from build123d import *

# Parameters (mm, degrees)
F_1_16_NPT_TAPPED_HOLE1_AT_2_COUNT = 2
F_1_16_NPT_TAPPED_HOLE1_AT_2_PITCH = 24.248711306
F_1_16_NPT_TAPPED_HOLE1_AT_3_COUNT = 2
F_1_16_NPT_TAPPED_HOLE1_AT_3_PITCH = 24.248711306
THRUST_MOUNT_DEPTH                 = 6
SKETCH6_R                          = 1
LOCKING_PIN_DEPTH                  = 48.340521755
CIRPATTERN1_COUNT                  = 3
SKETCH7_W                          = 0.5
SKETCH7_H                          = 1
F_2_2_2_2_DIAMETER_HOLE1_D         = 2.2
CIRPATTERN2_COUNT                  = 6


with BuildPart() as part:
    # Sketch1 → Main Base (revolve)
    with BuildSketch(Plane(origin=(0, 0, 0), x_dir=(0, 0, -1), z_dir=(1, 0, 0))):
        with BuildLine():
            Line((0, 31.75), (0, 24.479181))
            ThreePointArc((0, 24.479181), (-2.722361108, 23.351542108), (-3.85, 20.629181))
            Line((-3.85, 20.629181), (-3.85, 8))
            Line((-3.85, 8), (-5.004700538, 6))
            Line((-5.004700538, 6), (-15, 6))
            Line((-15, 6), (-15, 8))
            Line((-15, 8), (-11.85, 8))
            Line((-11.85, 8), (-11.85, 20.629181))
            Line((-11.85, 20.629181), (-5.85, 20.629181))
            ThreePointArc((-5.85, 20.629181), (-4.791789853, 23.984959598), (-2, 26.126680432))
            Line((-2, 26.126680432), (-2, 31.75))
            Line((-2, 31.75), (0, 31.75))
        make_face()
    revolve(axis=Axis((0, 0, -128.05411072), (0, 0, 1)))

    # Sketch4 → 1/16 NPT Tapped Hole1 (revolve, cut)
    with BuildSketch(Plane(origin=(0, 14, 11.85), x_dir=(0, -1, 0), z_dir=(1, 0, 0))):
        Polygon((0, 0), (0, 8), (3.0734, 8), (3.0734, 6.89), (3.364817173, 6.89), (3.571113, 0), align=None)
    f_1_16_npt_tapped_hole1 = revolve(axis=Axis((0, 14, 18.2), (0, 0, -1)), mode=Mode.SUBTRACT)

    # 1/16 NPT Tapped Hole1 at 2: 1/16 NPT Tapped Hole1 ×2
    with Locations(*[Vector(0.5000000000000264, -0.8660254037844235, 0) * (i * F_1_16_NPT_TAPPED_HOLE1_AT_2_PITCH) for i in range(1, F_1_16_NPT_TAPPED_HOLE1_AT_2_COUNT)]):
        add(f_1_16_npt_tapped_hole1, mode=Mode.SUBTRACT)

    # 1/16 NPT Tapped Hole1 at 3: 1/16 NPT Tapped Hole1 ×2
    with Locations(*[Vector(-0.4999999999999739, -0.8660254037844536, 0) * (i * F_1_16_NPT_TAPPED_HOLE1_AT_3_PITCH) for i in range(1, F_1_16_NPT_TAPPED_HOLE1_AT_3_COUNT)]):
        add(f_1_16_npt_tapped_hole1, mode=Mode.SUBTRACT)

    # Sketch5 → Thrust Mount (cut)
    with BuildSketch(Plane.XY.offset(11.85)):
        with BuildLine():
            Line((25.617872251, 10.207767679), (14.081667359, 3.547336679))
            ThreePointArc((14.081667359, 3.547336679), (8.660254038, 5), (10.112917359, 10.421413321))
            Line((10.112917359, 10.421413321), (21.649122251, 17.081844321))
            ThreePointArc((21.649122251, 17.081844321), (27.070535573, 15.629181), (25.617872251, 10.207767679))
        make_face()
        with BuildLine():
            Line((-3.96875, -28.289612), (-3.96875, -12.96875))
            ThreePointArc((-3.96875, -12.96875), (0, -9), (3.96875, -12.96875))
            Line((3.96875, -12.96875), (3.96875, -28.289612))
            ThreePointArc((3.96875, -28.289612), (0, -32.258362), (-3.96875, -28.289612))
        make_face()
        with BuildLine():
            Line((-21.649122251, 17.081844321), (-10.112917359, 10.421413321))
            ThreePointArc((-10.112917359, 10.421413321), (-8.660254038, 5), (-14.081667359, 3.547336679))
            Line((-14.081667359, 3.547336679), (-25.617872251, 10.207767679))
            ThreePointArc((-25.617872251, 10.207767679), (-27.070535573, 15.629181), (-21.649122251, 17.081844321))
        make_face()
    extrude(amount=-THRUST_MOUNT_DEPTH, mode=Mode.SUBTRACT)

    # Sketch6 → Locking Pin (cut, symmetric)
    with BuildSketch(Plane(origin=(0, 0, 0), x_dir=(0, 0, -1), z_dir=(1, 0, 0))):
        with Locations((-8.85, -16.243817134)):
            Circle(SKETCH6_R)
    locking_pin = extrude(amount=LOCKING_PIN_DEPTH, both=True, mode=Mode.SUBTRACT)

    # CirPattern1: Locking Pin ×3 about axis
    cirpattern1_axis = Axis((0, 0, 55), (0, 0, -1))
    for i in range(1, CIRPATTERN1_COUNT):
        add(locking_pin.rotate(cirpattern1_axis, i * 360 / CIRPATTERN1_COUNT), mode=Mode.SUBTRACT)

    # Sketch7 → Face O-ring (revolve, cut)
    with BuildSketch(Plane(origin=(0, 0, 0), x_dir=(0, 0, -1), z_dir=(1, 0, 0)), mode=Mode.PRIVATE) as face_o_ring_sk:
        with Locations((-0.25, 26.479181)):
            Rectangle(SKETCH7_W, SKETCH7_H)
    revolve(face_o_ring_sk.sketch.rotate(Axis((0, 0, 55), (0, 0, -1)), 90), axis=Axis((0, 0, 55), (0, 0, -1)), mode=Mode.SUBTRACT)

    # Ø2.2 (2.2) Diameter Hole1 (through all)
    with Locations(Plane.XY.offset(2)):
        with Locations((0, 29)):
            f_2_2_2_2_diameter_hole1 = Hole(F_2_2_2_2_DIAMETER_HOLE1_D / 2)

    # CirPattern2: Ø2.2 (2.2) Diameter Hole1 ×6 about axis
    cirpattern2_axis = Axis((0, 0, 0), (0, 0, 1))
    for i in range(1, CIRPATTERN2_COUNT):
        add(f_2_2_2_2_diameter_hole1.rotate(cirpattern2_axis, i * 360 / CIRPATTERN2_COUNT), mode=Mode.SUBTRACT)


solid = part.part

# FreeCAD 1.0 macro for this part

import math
import FreeCAD as App
import Part
import Sketcher
from FreeCAD import Vector
Q = App.Units.Quantity

doc = App.newDocument("Part")
params = doc.addObject("Spreadsheet::Sheet", "Params")
for row, (alias, value) in enumerate([
    ("sketch1_width", "2 mm"),
    ("sketch1_height", "6 mm"),
    ("sketch1_radius", "5.85 mm"),
    ("sketch1_radius2", "3.85 mm"),
    ("revolution_angle", "360 deg"),
    ("sketch2_height", "8 mm"),
    ("sketch2_height2", "1.11 mm"),
    ("groove_angle", "360 deg"),
    ("linearpattern_pitch", "24.248711 mm"),
    ("linearpattern2_pitch", "24.248711 mm"),
    ("pocket1_length", "6 mm"),
    ("sketch4_diameter", "2 mm"),
    ("pocket2_length", "96.681044 mm"),
    ("sketch5_width", "1 mm"),
    ("sketch5_height", "0.5 mm"),
    ("groove2_angle", "360 deg"),
    ("sketch6_diameter", "2.2 mm"),
    ("hole_diameter", "2.2 mm"),
], start=1):
    params.set(f"A{row}", alias)
    params.set(f"B{row}", "=" + value)
    params.setAlias(f"B{row}", alias)

body = doc.addObject("PartDesign::Body", "Body")

# Sketch on YZ plane
sketch1 = body.newObject("Sketcher::SketchObject", "Sketch")
sketch1.AttachmentSupport = (doc.getObject("YZ_Plane"), [""])
sketch1.MapMode = "FlatFace"
sketch1.addGeometry([
    Part.LineSegment(Vector(24.5, 0, 0), Vector(31.8, 0, 0)),  # 0
    Part.LineSegment(Vector(31.8, 0, 0), Vector(31.8, 2, 0)),  # 1
    Part.LineSegment(Vector(31.8, 2, 0), Vector(26.1, 2, 0)),  # 2
    Part.ArcOfCircle(Part.Circle(Vector(20.6, 0, 0), Vector(0, 0, 1), 5.9), math.radians(20), math.radians(90)),  # 3
    Part.LineSegment(Vector(20.6, 5.8, 0), Vector(20.6, 11.8, 0)),  # 4
    Part.LineSegment(Vector(20.6, 11.8, 0), Vector(8, 11.8, 0)),  # 5
    Part.LineSegment(Vector(8, 11.8, 0), Vector(8, 15, 0)),  # 6
    Part.LineSegment(Vector(8, 15, 0), Vector(6, 15, 0)),  # 7
    Part.LineSegment(Vector(6, 15, 0), Vector(6, 5, 0)),  # 8
    Part.LineSegment(Vector(6, 5, 0), Vector(8, 3.9, 0)),  # 9
    Part.LineSegment(Vector(8, 3.9, 0), Vector(20.6, 3.9, 0)),  # 10
    Part.ArcOfCircle(Part.Circle(Vector(20.6, 0, 0), Vector(0, 0, 1), 3.8), math.radians(0), math.radians(90)),  # 11
], False)
sketch1.addConstraint([
    Sketcher.Constraint("Coincident", 0, 2, 1, 1),
    Sketcher.Constraint("Coincident", 1, 2, 2, 1),
    Sketcher.Constraint("Coincident", 2, 2, 3, 1),
    Sketcher.Constraint("Coincident", 3, 2, 4, 1),
    Sketcher.Constraint("Coincident", 4, 2, 5, 1),
    Sketcher.Constraint("Coincident", 5, 2, 6, 1),
    Sketcher.Constraint("Coincident", 6, 2, 7, 1),
    Sketcher.Constraint("Coincident", 7, 2, 8, 1),
    Sketcher.Constraint("Coincident", 8, 2, 9, 1),
    Sketcher.Constraint("Coincident", 9, 2, 10, 1),
    Sketcher.Constraint("Tangent", 10, 2, 11, 2),
    Sketcher.Constraint("Coincident", 11, 1, 0, 1),
    Sketcher.Constraint("Horizontal", 0),
    Sketcher.Constraint("Vertical", 1),
    Sketcher.Constraint("Horizontal", 2),
    Sketcher.Constraint("Vertical", 4),
    Sketcher.Constraint("Horizontal", 5),
    Sketcher.Constraint("Vertical", 6),
    Sketcher.Constraint("Horizontal", 7),
    Sketcher.Constraint("Vertical", 8),
    Sketcher.Constraint("Horizontal", 10),
    Sketcher.Constraint("Coincident", 11, 3, 3, 3),
    Sketcher.Constraint("PointOnObject", 3, 3, -1),
    Sketcher.Constraint("PointOnObject", 0, 2, -1),
    Sketcher.Constraint("Vertical", 11, 3, 3, 2),
    Sketcher.Constraint("Vertical", 6, 2, 9, 2),
    Sketcher.Constraint("Equal", 7, 1),
    Sketcher.Constraint("DistanceX", 7, 2, 7, 1, Q("2 mm")),
    Sketcher.Constraint("DistanceY", 4, 1, 4, 2, Q("6 mm")),
    Sketcher.Constraint("Angle", 9, Q("-30 deg")),
    Sketcher.Constraint("Radius", 3, Q("5.85 mm")),
    Sketcher.Constraint("Radius", 11, Q("3.85 mm")),
    Sketcher.Constraint("DistanceX", -1, 1, 5, 2, Q("8 mm")),
    Sketcher.Constraint("DistanceY", -1, 1, 6, 2, Q("15 mm")),
    Sketcher.Constraint("DistanceX", -1, 1, 0, 2, Q("31.75 mm")),
    Sketcher.Constraint("DistanceX", 0, 1, 0, 2, Q("7.270819 mm")),
])
sketch1.setExpression("Constraints[27]", "Params.sketch1_width")
sketch1.setExpression("Constraints[28]", "Params.sketch1_height")
sketch1.setExpression("Constraints[30]", "Params.sketch1_radius")
sketch1.setExpression("Constraints[31]", "Params.sketch1_radius2")
revolution = body.newObject("PartDesign::Revolution", "Revolution")
revolution.Profile = sketch1
revolution.ReferenceAxis = (sketch1, ["V_Axis"])
revolution.setExpression("Angle", "Params.revolution_angle")

# Sketch on YZ plane
sketch2 = body.newObject("Sketcher::SketchObject", "Sketch001")
sketch2.AttachmentSupport = (doc.getObject("YZ_Plane"), [""])
sketch2.MapMode = "FlatFace"
sketch2.addGeometry([
    Part.LineSegment(Vector(14, 3.85, 0), Vector(14, 11.85, 0)),  # 0
    Part.LineSegment(Vector(14, 11.85, 0), Vector(10.43, 11.85, 0)),  # 1
    Part.LineSegment(Vector(10.43, 11.85, 0), Vector(10.64, 4.96, 0)),  # 2
    Part.LineSegment(Vector(10.64, 4.96, 0), Vector(10.93, 4.96, 0)),  # 3
    Part.LineSegment(Vector(10.93, 4.96, 0), Vector(10.93, 3.85, 0)),  # 4
    Part.LineSegment(Vector(10.93, 3.85, 0), Vector(14, 3.85, 0)),  # 5
], False)
sketch2.addGeometry(Part.LineSegment(Vector(14, 11.85, 0), Vector(14, 3.85, 0)), True)  # axis
sketch2.addConstraint([
    Sketcher.Constraint("Coincident", 0, 2, 1, 1),
    Sketcher.Constraint("Coincident", 1, 2, 2, 1),
    Sketcher.Constraint("Coincident", 2, 2, 3, 1),
    Sketcher.Constraint("Coincident", 3, 2, 4, 1),
    Sketcher.Constraint("Coincident", 4, 2, 5, 1),
    Sketcher.Constraint("Coincident", 5, 2, 0, 1),
    Sketcher.Constraint("Vertical", 0),
    Sketcher.Constraint("Horizontal", 1),
    Sketcher.Constraint("Horizontal", 3),
    Sketcher.Constraint("Vertical", 4),
    Sketcher.Constraint("Horizontal", 5),
    Sketcher.Constraint("Vertical", 6),
    Sketcher.Constraint("Coincident", 6, 1, 0, 2),
    Sketcher.Constraint("Horizontal", 4, 2, 6, 2),
    Sketcher.Constraint("DistanceY", 0, 1, 0, 2, Q("8 mm")),
    Sketcher.Constraint("DistanceX", -1, 1, 0, 2, Q("14 mm")),
    Sketcher.Constraint("DistanceY", 4, 2, 4, 1, Q("1.11 mm")),
    Sketcher.Constraint("DistanceY", -1, 1, 0, 2, Q("11.85 mm")),
    Sketcher.Constraint("DistanceX", 5, 1, 5, 2, Q("3.0734 mm")),
    Sketcher.Constraint("DistanceX", 1, 2, 1, 1, Q("3.571113 mm")),
    Sketcher.Constraint("DistanceX", 3, 1, 3, 2, Q("0.291417 mm")),
])
sketch2.setExpression("Constraints[14]", "Params.sketch2_height")
sketch2.setExpression("Constraints[16]", "Params.sketch2_height2")
groove = body.newObject("PartDesign::Groove", "Groove")
groove.Profile = sketch2
groove.ReferenceAxis = (sketch2, ["Axis0"])
groove.setExpression("Angle", "Params.groove_angle")
doc.recompute()

datumline = body.newObject("PartDesign::Line", "DatumLine")
datumline.Placement = App.Placement(Vector(0, 0, 0), App.Rotation(Vector(0, 0, 1), Vector(0.5, -0.866025404, 0)))
linearpattern = body.newObject("PartDesign::LinearPattern", "LinearPattern")
linearpattern.Originals = [groove]
linearpattern.Direction = (datumline, [""])
linearpattern.Mode = "offset"
linearpattern.setExpression("Offset", "Params.linearpattern_pitch")
linearpattern.Occurrences = 2
body.Tip = linearpattern
doc.recompute()

datumline2 = body.newObject("PartDesign::Line", "DatumLine001")
datumline2.Placement = App.Placement(Vector(0, 0, 0), App.Rotation(Vector(0, 0, 1), Vector(-0.5, -0.866025404, 0)))
linearpattern2 = body.newObject("PartDesign::LinearPattern", "LinearPattern001")
linearpattern2.Originals = [groove]
linearpattern2.Direction = (datumline2, [""])
linearpattern2.Mode = "offset"
linearpattern2.setExpression("Offset", "Params.linearpattern2_pitch")
linearpattern2.Occurrences = 2
body.Tip = linearpattern2

# Sketch on XY plane
sketch3 = body.newObject("Sketcher::SketchObject", "Sketch002")
sketch3.AttachmentSupport = (doc.getObject("XY_Plane"), [""])
sketch3.MapMode = "FlatFace"
sketch3.AttachmentOffset = App.Placement(Vector(0, 0, 11.85), App.Rotation())
sketch3.addGeometry([
    Part.LineSegment(Vector(14.1, 3.5, 0), Vector(25.6, 10.2, 0)),  # 0
    Part.ArcOfCircle(Part.Circle(Vector(23.6, 13.6, 0), Vector(0, 0, 1), 4), math.radians(-60), math.radians(120)),  # 1
    Part.LineSegment(Vector(21.6, 17.1, 0), Vector(10.1, 10.4, 0)),  # 2
    Part.ArcOfCircle(Part.Circle(Vector(12.1, 7, 0), Vector(0, 0, 1), 4), math.radians(120), math.radians(300)),  # 3
    Part.LineSegment(Vector(-4, -13, 0), Vector(-4, -28.3, 0)),  # 4
    Part.ArcOfCircle(Part.Circle(Vector(0, -28.3, 0), Vector(0, 0, 1), 4), math.radians(180), math.radians(360)),  # 5
    Part.LineSegment(Vector(4, -28.3, 0), Vector(4, -13, 0)),  # 6
    Part.ArcOfCircle(Part.Circle(Vector(0, -13, 0), Vector(0, 0, 1), 4), math.radians(0), math.radians(180)),  # 7
    Part.LineSegment(Vector(-10.1, 10.4, 0), Vector(-21.6, 17.1, 0)),  # 8
    Part.ArcOfCircle(Part.Circle(Vector(-23.6, 13.6, 0), Vector(0, 0, 1), 4), math.radians(60), math.radians(240)),  # 9
    Part.LineSegment(Vector(-25.6, 10.2, 0), Vector(-14.1, 3.5, 0)),  # 10
    Part.ArcOfCircle(Part.Circle(Vector(-12.1, 7, 0), Vector(0, 0, 1), 4), math.radians(-120), math.radians(60)),  # 11
], False)
sketch3.addConstraint([
    Sketcher.Constraint("Tangent", 0, 2, 1, 1),
    Sketcher.Constraint("Tangent", 1, 2, 2, 1),
    Sketcher.Constraint("Tangent", 2, 2, 3, 1),
    Sketcher.Constraint("Tangent", 3, 2, 0, 1),
    Sketcher.Constraint("Tangent", 4, 2, 5, 1),
    Sketcher.Constraint("Tangent", 5, 2, 6, 1),
    Sketcher.Constraint("Tangent", 6, 2, 7, 1),
    Sketcher.Constraint("Tangent", 7, 2, 4, 1),
    Sketcher.Constraint("Tangent", 8, 2, 9, 1),
    Sketcher.Constraint("Tangent", 9, 2, 10, 1),
    Sketcher.Constraint("Tangent", 10, 2, 11, 1),
    Sketcher.Constraint("Tangent", 11, 2, 8, 1),
    Sketcher.Constraint("Vertical", 4),
    Sketcher.Constraint("Vertical", 6),
    Sketcher.Constraint("Equal", 1, 3),
    Sketcher.Constraint("Equal", 3, 5),
    Sketcher.Constraint("Equal", 7, 9),
    Sketcher.Constraint("Equal", 9, 11),
    Sketcher.Constraint("Symmetric", 1, 3, 9, 3, -2),
    Sketcher.Constraint("Symmetric", 3, 3, 11, 3, -2),
    Sketcher.Constraint("PointOnObject", 5, 3, -2),
    Sketcher.Constraint("Angle", 0, Q("30 deg")),
    Sketcher.Constraint("Radius", 1, Q("3.96875 mm")),
    Sketcher.Constraint("Distance", 0, Q("13.320862 mm")),
    Sketcher.Constraint("DistanceY", 4, 2, 4, 1, Q("15.320862 mm")),
    Sketcher.Constraint("DistanceY", 7, 3, -1, 1, Q("12.96875 mm")),
    Sketcher.Constraint("DistanceX", 9, 3, 3, 3, Q("35.73079 mm")),
    Sketcher.Constraint("DistanceY", 5, 3, 0, 2, Q("38.49738 mm")),
])
pocket1 = body.newObject("PartDesign::Pocket", "Pocket")
pocket1.Profile = sketch3
pocket1.setExpression("Length", "Params.pocket1_length")

# Sketch on YZ plane
sketch4 = body.newObject("Sketcher::SketchObject", "Sketch003")
sketch4.AttachmentSupport = (doc.getObject("YZ_Plane"), [""])
sketch4.MapMode = "FlatFace"
sketch4.addGeometry(Part.Circle(Vector(-16.2, 8.8, 0), Vector(0, 0, 1), 1), False)
sketch4.addConstraint([
    Sketcher.Constraint("Diameter", 0, Q("2 mm")),
    Sketcher.Constraint("DistanceY", -1, 1, 0, 3, Q("8.85 mm")),
    Sketcher.Constraint("DistanceX", 0, 3, -1, 1, Q("16.243817 mm")),
])
sketch4.setExpression("Constraints[0]", "Params.sketch4_diameter")
pocket2 = body.newObject("PartDesign::Pocket", "Pocket001")
pocket2.Profile = sketch4
pocket2.setExpression("Length", "Params.pocket2_length")
pocket2.Midplane = True
doc.recompute()

polarpattern = body.newObject("PartDesign::PolarPattern", "PolarPattern")
polarpattern.Originals = [pocket2]
polarpattern.Axis = (doc.getObject("Z_Axis"), [""])
polarpattern.Angle = 360
polarpattern.Occurrences = 3
body.Tip = polarpattern

# Sketch on YZ plane
sketch5 = body.newObject("Sketcher::SketchObject", "Sketch004")
sketch5.AttachmentSupport = (doc.getObject("YZ_Plane"), [""])
sketch5.MapMode = "FlatFace"
sketch5.addGeometry([
    Part.LineSegment(Vector(27, 0.5, 0), Vector(26, 0.5, 0)),
    Part.LineSegment(Vector(26, 0.5, 0), Vector(26, 0, 0)),
    Part.LineSegment(Vector(26, 0, 0), Vector(27, 0, 0)),
    Part.LineSegment(Vector(27, 0, 0), Vector(27, 0.5, 0)),
], False)
sketch5.addConstraint([
    Sketcher.Constraint("Coincident", 0, 2, 1, 1),
    Sketcher.Constraint("Coincident", 1, 2, 2, 1),
    Sketcher.Constraint("Coincident", 2, 2, 3, 1),
    Sketcher.Constraint("Coincident", 3, 2, 0, 1),
    Sketcher.Constraint("Horizontal", 0),
    Sketcher.Constraint("Vertical", 1),
    Sketcher.Constraint("Horizontal", 2),
    Sketcher.Constraint("Vertical", 3),
    Sketcher.Constraint("PointOnObject", 1, 2, -1),
    Sketcher.Constraint("DistanceX", 0, 2, 0, 1, Q("1 mm")),
    Sketcher.Constraint("DistanceY", 1, 2, 1, 1, Q("0.5 mm")),
    Sketcher.Constraint("DistanceX", -1, 1, 0, 2, Q("25.979181 mm")),
])
sketch5.setExpression("Constraints[9]", "Params.sketch5_width")
sketch5.setExpression("Constraints[10]", "Params.sketch5_height")
groove2 = body.newObject("PartDesign::Groove", "Groove001")
groove2.Profile = sketch5
groove2.ReferenceAxis = (sketch5, ["V_Axis"])
groove2.setExpression("Angle", "Params.groove2_angle")

# Sketch on XY plane
sketch6 = body.newObject("Sketcher::SketchObject", "Sketch005")
sketch6.AttachmentSupport = (doc.getObject("XY_Plane"), [""])
sketch6.MapMode = "FlatFace"
sketch6.AttachmentOffset = App.Placement(Vector(0, 0, 2), App.Rotation())
sketch6.addGeometry(Part.Circle(Vector(0, 29, 0), Vector(0, 0, 1), 1.1), False)
sketch6.addConstraint([
    Sketcher.Constraint("PointOnObject", 0, 3, -2),
    Sketcher.Constraint("Diameter", 0, Q("2.2 mm")),
    Sketcher.Constraint("DistanceY", -1, 1, 0, 3, Q("29 mm")),
])
sketch6.setExpression("Constraints[1]", "Params.sketch6_diameter")
doc.recompute()
hole = body.newObject("PartDesign::Hole", "Hole")
hole.Profile = sketch6
hole.ThreadType = "None"
hole.setExpression("Diameter", "Params.hole_diameter")
hole.DepthType = "ThroughAll"
doc.recompute()

polarpattern2 = body.newObject("PartDesign::PolarPattern", "PolarPattern001")
polarpattern2.Originals = [hole]
polarpattern2.Axis = (doc.getObject("Z_Axis"), [""])
polarpattern2.Angle = 360
polarpattern2.Occurrences = 6
body.Tip = polarpattern2

doc.recompute()
